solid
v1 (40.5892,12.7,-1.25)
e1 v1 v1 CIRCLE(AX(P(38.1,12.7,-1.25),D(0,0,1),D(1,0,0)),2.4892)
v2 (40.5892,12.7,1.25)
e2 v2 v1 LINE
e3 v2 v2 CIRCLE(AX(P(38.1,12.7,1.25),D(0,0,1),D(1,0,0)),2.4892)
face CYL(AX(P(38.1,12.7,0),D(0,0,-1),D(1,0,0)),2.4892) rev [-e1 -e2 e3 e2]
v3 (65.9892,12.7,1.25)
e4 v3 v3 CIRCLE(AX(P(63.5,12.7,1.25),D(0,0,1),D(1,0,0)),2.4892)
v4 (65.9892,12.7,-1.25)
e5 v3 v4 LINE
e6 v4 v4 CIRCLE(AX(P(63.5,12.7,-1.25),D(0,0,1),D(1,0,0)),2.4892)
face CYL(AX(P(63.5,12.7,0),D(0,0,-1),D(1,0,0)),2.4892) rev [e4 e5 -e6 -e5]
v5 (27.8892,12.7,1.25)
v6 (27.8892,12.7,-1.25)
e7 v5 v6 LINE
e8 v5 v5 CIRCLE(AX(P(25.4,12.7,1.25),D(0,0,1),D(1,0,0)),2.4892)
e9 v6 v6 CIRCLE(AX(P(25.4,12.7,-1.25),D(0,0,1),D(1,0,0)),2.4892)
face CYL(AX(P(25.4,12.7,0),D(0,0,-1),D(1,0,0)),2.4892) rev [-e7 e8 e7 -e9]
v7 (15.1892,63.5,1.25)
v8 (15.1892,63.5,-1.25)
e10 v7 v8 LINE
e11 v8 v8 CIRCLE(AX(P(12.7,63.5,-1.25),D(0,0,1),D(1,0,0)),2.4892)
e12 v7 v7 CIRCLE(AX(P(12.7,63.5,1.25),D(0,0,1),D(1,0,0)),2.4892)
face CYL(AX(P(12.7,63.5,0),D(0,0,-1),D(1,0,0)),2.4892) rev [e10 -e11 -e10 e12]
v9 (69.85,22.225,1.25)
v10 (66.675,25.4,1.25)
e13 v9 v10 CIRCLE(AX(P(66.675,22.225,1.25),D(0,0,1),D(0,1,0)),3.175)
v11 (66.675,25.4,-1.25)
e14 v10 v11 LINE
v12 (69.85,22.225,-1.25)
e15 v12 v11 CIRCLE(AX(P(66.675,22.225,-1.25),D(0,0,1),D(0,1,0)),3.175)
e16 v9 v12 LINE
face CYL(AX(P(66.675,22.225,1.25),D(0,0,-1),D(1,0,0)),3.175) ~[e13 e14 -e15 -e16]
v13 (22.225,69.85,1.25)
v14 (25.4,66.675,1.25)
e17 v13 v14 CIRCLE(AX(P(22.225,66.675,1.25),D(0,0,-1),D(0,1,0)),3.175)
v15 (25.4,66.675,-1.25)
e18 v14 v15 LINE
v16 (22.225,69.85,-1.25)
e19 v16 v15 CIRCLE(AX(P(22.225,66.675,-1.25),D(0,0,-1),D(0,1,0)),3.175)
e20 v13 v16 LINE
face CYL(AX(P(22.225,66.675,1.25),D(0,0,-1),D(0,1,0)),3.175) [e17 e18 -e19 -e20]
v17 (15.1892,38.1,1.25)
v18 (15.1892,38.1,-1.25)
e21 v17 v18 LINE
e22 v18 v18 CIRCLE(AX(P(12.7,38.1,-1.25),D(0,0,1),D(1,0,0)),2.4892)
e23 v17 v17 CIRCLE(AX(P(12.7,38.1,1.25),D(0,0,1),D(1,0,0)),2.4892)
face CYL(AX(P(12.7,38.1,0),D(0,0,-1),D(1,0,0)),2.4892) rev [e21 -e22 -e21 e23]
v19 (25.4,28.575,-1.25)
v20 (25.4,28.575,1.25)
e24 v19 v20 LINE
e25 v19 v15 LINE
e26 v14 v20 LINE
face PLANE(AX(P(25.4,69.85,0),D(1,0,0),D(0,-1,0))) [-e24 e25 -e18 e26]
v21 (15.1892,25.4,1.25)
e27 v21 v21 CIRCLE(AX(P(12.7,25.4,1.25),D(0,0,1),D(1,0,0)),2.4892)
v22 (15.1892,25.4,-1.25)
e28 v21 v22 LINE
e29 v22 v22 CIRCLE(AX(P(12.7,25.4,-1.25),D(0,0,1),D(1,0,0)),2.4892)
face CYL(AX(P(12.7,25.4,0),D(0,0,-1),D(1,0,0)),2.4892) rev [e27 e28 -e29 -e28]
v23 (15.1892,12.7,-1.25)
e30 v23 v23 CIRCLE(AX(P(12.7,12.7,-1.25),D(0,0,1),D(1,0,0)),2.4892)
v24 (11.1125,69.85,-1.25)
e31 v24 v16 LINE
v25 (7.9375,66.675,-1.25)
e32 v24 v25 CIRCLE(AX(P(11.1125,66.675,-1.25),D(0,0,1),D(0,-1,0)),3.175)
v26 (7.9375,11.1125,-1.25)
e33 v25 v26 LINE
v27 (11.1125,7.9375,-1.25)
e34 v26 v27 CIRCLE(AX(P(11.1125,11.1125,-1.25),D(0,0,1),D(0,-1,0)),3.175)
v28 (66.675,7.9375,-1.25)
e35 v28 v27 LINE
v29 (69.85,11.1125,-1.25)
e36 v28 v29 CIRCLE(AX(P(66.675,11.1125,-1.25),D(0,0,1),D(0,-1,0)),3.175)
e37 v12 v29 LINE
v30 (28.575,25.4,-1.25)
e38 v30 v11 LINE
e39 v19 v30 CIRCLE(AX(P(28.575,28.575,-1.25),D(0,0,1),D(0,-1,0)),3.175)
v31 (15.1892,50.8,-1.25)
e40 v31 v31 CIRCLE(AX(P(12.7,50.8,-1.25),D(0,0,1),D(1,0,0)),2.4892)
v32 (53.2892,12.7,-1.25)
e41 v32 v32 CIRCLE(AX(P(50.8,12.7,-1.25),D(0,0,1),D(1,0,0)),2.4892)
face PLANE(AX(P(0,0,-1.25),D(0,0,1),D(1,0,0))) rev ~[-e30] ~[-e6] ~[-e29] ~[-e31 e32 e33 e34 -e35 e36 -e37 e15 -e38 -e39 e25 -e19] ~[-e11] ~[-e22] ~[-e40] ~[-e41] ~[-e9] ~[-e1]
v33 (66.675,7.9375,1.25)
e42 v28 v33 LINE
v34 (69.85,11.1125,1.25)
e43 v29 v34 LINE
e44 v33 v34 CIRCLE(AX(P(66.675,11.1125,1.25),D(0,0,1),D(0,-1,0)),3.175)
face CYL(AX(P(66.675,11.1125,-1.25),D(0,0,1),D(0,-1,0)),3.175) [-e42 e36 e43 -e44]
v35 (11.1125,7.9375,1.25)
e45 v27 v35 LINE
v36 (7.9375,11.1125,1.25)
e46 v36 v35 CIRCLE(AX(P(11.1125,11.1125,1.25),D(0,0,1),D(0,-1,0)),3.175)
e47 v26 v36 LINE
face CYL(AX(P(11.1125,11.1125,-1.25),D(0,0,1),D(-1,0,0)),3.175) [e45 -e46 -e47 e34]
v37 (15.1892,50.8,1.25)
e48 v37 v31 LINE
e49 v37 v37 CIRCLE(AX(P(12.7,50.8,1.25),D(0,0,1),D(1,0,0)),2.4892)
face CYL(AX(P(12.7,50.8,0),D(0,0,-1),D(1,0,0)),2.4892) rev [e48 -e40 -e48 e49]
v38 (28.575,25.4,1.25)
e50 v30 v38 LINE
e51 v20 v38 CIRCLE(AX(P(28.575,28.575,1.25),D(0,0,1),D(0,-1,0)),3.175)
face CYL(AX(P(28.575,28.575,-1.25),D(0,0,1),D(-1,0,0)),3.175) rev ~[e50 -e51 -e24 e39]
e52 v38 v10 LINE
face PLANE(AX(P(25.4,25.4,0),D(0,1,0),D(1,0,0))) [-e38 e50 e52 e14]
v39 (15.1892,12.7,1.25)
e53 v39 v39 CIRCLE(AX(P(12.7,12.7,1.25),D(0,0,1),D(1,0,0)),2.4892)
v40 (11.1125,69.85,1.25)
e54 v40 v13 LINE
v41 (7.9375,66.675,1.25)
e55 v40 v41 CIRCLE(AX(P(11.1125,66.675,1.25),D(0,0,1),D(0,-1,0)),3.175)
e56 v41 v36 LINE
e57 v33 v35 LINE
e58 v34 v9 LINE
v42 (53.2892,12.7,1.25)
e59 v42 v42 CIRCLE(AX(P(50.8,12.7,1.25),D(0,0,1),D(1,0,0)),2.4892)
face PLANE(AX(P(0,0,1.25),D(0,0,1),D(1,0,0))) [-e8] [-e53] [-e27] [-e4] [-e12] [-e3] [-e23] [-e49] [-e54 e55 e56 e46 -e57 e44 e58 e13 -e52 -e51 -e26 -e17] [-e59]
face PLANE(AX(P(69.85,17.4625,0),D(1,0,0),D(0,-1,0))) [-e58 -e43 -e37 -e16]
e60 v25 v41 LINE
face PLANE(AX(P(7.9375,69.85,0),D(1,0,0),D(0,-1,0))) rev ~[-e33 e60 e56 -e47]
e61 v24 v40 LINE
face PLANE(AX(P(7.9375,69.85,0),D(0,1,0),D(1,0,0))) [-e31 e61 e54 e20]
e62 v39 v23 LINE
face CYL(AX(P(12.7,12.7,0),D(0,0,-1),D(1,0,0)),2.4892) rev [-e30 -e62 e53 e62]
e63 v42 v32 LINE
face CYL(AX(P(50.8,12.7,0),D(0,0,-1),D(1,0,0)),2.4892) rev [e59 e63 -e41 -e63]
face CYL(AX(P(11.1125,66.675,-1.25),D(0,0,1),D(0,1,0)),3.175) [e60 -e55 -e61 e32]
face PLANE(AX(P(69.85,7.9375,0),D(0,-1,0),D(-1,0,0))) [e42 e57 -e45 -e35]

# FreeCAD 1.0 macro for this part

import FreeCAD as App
import Part
import Sketcher

V = App.Vector
Q = App.Units.Quantity


def edges_at(feature, points):
    """Names of the edges that pass closest to the given points."""
    edges = feature.Shape.Edges
    near = lambda p: min(range(len(edges)), key=lambda i: edges[i].distToShape(Part.Vertex(*p))[0])
    return sorted({f"Edge{near(p) + 1}" for p in points})

doc = App.newDocument("Part")
body = doc.addObject("PartDesign::Body", "Body")

sketch1 = doc.addObject("Sketcher::SketchObject", "Sketch")
body.addObject(sketch1)
sketch1.AttachmentSupport = (doc.XY_Plane, [""])
sketch1.MapMode = "FlatFace"
sketch1.addGeometry([
    Part.LineSegment(V(25.4, 69.8, 0), V(7.9, 69.8, 0)),
    Part.LineSegment(V(7.9, 69.8, 0), V(7.9, 7.9, 0)),
    Part.LineSegment(V(7.9, 7.9, 0), V(69.8, 7.9, 0)),
    Part.LineSegment(V(69.8, 7.9, 0), V(69.8, 17.5, 0)),
    Part.LineSegment(V(69.8, 17.5, 0), V(25.4, 17.5, 0)),
    Part.LineSegment(V(25.4, 17.5, 0), V(25.4, 69.8, 0)),
    Part.Circle(V(12.7, 12.7, 0), V(0, 0, 1), 2.5),
    Part.Circle(V(25.4, 12.7, 0), V(0, 0, 1), 2.5),
    Part.Circle(V(38.1, 12.7, 0), V(0, 0, 1), 2.5),
    Part.Circle(V(12.7, 25.4, 0), V(0, 0, 1), 2.5),
    Part.Circle(V(12.7, 38.1, 0), V(0, 0, 1), 2.5),
    Part.Circle(V(50.8, 12.7, 0), V(0, 0, 1), 2.5),
    Part.Circle(V(63.5, 12.7, 0), V(0, 0, 1), 2.5),
    Part.Circle(V(12.7, 50.8, 0), V(0, 0, 1), 2.5),
    Part.Circle(V(12.7, 63.5, 0), V(0, 0, 1), 2.5),
], False)
sketch1.addConstraint([
    Sketcher.Constraint("Coincident", 0, 2, 1, 1),
    Sketcher.Constraint("Coincident", 1, 2, 2, 1),
    Sketcher.Constraint("Coincident", 2, 2, 3, 1),
    Sketcher.Constraint("Coincident", 3, 2, 4, 1),
    Sketcher.Constraint("Coincident", 4, 2, 5, 1),
    Sketcher.Constraint("Coincident", 5, 2, 0, 1),
    Sketcher.Constraint("Horizontal", 0),
    Sketcher.Constraint("Vertical", 1),
    Sketcher.Constraint("Horizontal", 2),
    Sketcher.Constraint("Vertical", 3),
    Sketcher.Constraint("Horizontal", 4),
    Sketcher.Constraint("Vertical", 5),
    Sketcher.Constraint("Equal", 6, 7),
    Sketcher.Constraint("Equal", 7, 8),
    Sketcher.Constraint("Equal", 8, 9),
    Sketcher.Constraint("Equal", 9, 10),
    Sketcher.Constraint("Equal", 10, 11),
    Sketcher.Constraint("Equal", 11, 12),
    Sketcher.Constraint("Equal", 12, 13),
    Sketcher.Constraint("Equal", 13, 14),
    Sketcher.Constraint("Horizontal", 6, 3, 7, 3),
    Sketcher.Constraint("Horizontal", 7, 3, 8, 3),
    Sketcher.Constraint("Horizontal", 8, 3, 11, 3),
    Sketcher.Constraint("Horizontal", 11, 3, 12, 3),
    Sketcher.Constraint("Vertical", 6, 3, 9, 3),
    Sketcher.Constraint("Vertical", 9, 3, 10, 3),
    Sketcher.Constraint("Vertical", 10, 3, 13, 3),
    Sketcher.Constraint("Vertical", 13, 3, 14, 3),
    Sketcher.Constraint("Vertical", 7, 3, 4, 2),
    Sketcher.Constraint("Equal", 2, 1),
    Sketcher.Constraint("Diameter", 6, Q("0.196 in")),
    Sketcher.Constraint("DistanceX", -1, 1, 7, 3, Q("1 in")),
    Sketcher.Constraint("DistanceY", -1, 1, 9, 3, Q("1 in")),
    Sketcher.Constraint("DistanceX", 6, 3, 8, 3, Q("1 in")),
    Sketcher.Constraint("DistanceY", 6, 3, 10, 3, Q("1 in")),
    Sketcher.Constraint("DistanceX", 7, 3, 11, 3, Q("1 in")),
    Sketcher.Constraint("DistanceX", 8, 3, 12, 3, Q("1 in")),
    Sketcher.Constraint("DistanceY", 9, 3, 13, 3, Q("1 in")),
    Sketcher.Constraint("DistanceY", 10, 3, 14, 3, Q("1 in")),
    Sketcher.Constraint("DistanceX", -1, 1, 6, 3, Q("0.5 in")),
    Sketcher.Constraint("DistanceY", -1, 1, 6, 3, Q("0.5 in")),
    Sketcher.Constraint("DistanceX", 0, 2, 0, 1, Q("0.6875 in")),
    Sketcher.Constraint("DistanceY", 3, 1, 3, 2, Q("0.375 in")),
    Sketcher.Constraint("DistanceY", 14, 3, 0, 2, Q("0.25 in")),
    Sketcher.Constraint("DistanceX", 12, 3, 2, 2, Q("0.25 in")),
])
pad1 = doc.addObject("PartDesign::Pad", "Pad")
body.addObject(pad1)
pad1.Profile = sketch1
pad1.Length = 2.5
pad1.Midplane = True

sketch2 = doc.addObject("Sketcher::SketchObject", "Sketch001")
body.addObject(sketch2)
sketch2.AttachmentSupport = (doc.XY_Plane, [""])
sketch2.MapMode = "FlatFace"
sketch2.addGeometry([
    Part.LineSegment(V(70, 25, 0), V(25, 25, 0)),
    Part.LineSegment(V(25, 25, 0), V(25, 17, 0)),
    Part.LineSegment(V(25, 17, 0), V(70, 17, 0)),
    Part.LineSegment(V(70, 17, 0), V(70, 25, 0)),
], False)
sketch2.addConstraint([
    Sketcher.Constraint("Coincident", 0, 2, 1, 1),
    Sketcher.Constraint("Coincident", 1, 2, 2, 1),
    Sketcher.Constraint("Coincident", 2, 2, 3, 1),
    Sketcher.Constraint("Coincident", 3, 2, 0, 1),
    Sketcher.Constraint("Horizontal", 0),
    Sketcher.Constraint("Vertical", 1),
    Sketcher.Constraint("Horizontal", 2),
    Sketcher.Constraint("Vertical", 3),
    Sketcher.Constraint("DistanceX", -1, 1, 0, 2, Q("1 in")),
    Sketcher.Constraint("DistanceY", -1, 1, 0, 2, Q("1 in")),
    Sketcher.Constraint("DistanceY", -1, 1, 1, 2, Q("0.6875 in")),
    Sketcher.Constraint("DistanceX", 0, 2, 0, 1, Q("1.75 in")),
])
pad2 = doc.addObject("PartDesign::Pad", "Pad001")
body.addObject(pad2)
pad2.Profile = sketch2
pad2.Length = 2.5
pad2.Midplane = True
doc.recompute()

fillet = doc.addObject("PartDesign::Fillet", "Fillet")
body.addObject(fillet)
fillet.Base = (pad2, edges_at(pad2, [
    (25.4, 69.85, 0),
    (7.938, 69.85, 0),
    (7.938, 7.938, 0),
    (69.85, 7.938, 0),
    (69.85, 25.4, 0),
    (25.4, 25.4, 0),
]))
fillet.Radius = Q("0.125 in")

doc.recompute()
